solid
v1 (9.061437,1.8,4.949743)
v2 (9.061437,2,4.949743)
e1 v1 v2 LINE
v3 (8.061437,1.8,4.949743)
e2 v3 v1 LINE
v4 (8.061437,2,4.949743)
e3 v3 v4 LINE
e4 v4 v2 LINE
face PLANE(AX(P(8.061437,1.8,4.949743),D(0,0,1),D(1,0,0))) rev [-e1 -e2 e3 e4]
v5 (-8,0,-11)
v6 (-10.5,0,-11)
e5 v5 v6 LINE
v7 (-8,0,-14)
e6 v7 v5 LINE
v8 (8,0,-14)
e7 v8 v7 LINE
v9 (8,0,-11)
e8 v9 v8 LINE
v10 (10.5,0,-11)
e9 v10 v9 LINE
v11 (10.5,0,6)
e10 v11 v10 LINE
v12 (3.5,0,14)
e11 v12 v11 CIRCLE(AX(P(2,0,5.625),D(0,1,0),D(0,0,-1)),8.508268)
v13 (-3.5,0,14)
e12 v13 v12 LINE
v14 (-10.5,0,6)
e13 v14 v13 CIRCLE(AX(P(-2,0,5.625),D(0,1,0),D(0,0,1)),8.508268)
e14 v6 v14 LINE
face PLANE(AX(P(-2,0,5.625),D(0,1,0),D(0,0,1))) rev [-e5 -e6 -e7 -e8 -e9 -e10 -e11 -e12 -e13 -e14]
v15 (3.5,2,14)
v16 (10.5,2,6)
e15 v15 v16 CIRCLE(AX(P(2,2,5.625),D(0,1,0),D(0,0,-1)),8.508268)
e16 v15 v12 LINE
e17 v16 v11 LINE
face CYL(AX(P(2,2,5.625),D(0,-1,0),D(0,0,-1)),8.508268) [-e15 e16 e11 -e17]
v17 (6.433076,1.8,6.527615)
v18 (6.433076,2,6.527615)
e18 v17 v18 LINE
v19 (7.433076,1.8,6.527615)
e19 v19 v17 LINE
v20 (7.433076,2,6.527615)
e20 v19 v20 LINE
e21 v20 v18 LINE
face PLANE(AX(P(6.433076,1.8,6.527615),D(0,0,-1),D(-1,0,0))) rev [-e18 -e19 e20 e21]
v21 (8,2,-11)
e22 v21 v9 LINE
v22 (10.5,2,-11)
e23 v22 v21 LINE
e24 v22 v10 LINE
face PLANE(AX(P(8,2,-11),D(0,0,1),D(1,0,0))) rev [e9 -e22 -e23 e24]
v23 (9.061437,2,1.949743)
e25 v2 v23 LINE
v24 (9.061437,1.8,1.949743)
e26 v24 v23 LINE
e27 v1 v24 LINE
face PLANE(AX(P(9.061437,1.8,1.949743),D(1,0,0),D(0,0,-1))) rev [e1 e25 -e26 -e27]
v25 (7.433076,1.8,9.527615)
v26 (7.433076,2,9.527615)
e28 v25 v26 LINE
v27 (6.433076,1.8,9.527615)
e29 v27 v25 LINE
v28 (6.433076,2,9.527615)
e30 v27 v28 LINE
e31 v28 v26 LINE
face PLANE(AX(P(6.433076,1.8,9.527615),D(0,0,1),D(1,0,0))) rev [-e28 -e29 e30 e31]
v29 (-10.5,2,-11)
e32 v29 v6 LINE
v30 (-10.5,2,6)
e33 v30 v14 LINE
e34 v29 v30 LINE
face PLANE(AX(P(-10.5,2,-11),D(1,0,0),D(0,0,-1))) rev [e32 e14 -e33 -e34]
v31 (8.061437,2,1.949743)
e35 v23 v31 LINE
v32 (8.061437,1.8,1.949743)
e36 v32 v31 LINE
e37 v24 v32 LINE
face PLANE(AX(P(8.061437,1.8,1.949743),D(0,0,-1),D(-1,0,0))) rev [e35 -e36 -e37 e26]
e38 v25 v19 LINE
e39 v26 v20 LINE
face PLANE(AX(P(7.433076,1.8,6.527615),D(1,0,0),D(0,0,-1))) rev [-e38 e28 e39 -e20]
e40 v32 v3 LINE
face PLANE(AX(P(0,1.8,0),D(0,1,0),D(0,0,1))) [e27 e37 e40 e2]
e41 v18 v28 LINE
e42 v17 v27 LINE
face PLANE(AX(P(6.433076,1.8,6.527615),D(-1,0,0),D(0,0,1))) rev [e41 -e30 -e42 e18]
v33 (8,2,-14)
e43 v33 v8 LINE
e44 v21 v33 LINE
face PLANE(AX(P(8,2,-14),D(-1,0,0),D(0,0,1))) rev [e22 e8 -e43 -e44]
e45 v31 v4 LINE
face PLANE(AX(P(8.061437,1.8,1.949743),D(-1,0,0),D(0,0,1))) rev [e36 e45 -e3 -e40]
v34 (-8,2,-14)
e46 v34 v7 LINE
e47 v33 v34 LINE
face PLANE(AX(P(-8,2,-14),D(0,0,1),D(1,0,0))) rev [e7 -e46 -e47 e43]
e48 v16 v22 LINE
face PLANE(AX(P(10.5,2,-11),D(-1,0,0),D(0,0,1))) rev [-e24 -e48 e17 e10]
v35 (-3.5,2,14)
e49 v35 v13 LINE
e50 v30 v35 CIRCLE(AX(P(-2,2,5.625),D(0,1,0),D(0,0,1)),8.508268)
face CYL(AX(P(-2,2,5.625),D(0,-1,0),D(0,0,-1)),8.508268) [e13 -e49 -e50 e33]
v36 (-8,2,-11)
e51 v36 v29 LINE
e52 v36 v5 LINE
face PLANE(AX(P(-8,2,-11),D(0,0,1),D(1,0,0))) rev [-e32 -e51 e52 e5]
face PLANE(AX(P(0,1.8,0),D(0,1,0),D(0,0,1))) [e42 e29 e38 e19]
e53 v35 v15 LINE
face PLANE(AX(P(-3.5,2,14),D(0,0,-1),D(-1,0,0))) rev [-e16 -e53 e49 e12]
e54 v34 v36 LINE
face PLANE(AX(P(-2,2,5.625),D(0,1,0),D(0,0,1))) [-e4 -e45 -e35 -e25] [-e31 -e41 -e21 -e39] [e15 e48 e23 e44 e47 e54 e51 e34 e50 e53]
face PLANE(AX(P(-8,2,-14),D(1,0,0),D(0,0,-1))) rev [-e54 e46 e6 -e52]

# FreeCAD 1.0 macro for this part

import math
import FreeCAD as App
import Part
import Sketcher
from FreeCAD import Vector
Q = App.Units.Quantity

doc = App.newDocument("Part")
body = doc.addObject("PartDesign::Body", "Body")

# Sketch on XZ plane
sketch1 = doc.addObject("Sketcher::SketchObject", "Sketch")
body.addObject(sketch1)
sketch1.AttachmentSupport = (doc.XZ_Plane, [""])
sketch1.MapMode = "FlatFace"
sketch1.addGeometry([
    Part.LineSegment(Vector(8, -14, 0), Vector(-8, -14, 0)),  # 0
    Part.LineSegment(Vector(-8, -14, 0), Vector(-8, -11, 0)),  # 1
    Part.LineSegment(Vector(-8, -11, 0), Vector(-10.5, -11, 0)),  # 2
    Part.LineSegment(Vector(-10.5, -11, 0), Vector(-10.5, 6, 0)),  # 3
    Part.ArcOfCircle(Part.Circle(Vector(-2, 5.6, 0), Vector(0, 0, 1), 8.5), math.radians(100), math.radians(177)),  # 4
    Part.LineSegment(Vector(-3.5, 14, 0), Vector(3.5, 14, 0)),  # 5
    Part.ArcOfCircle(Part.Circle(Vector(2, 5.6, 0), Vector(0, 0, 1), 8.5), math.radians(3), math.radians(80)),  # 6
    Part.LineSegment(Vector(10.5, 6, 0), Vector(10.5, -11, 0)),  # 7
    Part.LineSegment(Vector(10.5, -11, 0), Vector(8, -11, 0)),  # 8
    Part.LineSegment(Vector(8, -11, 0), Vector(8, -14, 0)),  # 9
], False)
sketch1.addConstraint([
    Sketcher.Constraint("Coincident", 0, 2, 1, 1),
    Sketcher.Constraint("Coincident", 1, 2, 2, 1),
    Sketcher.Constraint("Coincident", 2, 2, 3, 1),
    Sketcher.Constraint("Coincident", 3, 2, 4, 2),
    Sketcher.Constraint("Coincident", 4, 1, 5, 1),
    Sketcher.Constraint("Coincident", 5, 2, 6, 2),
    Sketcher.Constraint("Coincident", 6, 1, 7, 1),
    Sketcher.Constraint("Coincident", 7, 2, 8, 1),
    Sketcher.Constraint("Coincident", 8, 2, 9, 1),
    Sketcher.Constraint("Coincident", 9, 2, 0, 1),
    Sketcher.Constraint("Horizontal", 0),
    Sketcher.Constraint("Vertical", 1),
    Sketcher.Constraint("Horizontal", 2),
    Sketcher.Constraint("Vertical", 3),
    Sketcher.Constraint("Horizontal", 5),
    Sketcher.Constraint("Vertical", 7),
    Sketcher.Constraint("Horizontal", 8),
    Sketcher.Constraint("Vertical", 9),
    Sketcher.Constraint("Equal", 4, 6),
    Sketcher.Constraint("Symmetric", 4, 3, 6, 3, -2),
    Sketcher.Constraint("Symmetric", 2, 2, 7, 2, -2),
    Sketcher.Constraint("Equal", 2, 8),
    Sketcher.Constraint("DistanceX", 0, 2, 0, 1, Q("16 mm")),
    Sketcher.Constraint("DistanceX", 5, 1, 5, 2, Q("7 mm")),
    Sketcher.Constraint("DistanceY", 1, 1, 1, 2, Q("3 mm")),
    Sketcher.Constraint("DistanceY", 3, 1, 3, 2, Q("17 mm")),
    Sketcher.Constraint("DistanceX", 2, 2, 2, 1, Q("2.5 mm")),
    Sketcher.Constraint("DistanceX", 4, 3, -1, 1, Q("2 mm")),
    Sketcher.Constraint("DistanceY", 0, 2, -1, 1, Q("14 mm")),
    Sketcher.Constraint("DistanceY", -1, 1, 4, 1, Q("14 mm")),
])
pad1 = doc.addObject("PartDesign::Pad", "Pad")
body.addObject(pad1)
pad1.Profile = sketch1
pad1.Length = 2
pad1.Reversed = True

# Sketch on XZ plane
sketch2 = doc.addObject("Sketcher::SketchObject", "Sketch001")
body.addObject(sketch2)
sketch2.AttachmentSupport = (doc.XZ_Plane, [""])
sketch2.MapMode = "FlatFace"
sketch2.AttachmentOffset = App.Placement(Vector(0, 0, -2), App.Rotation())
sketch2.addGeometry([
    Part.LineSegment(Vector(8.1, 1.9, 0), Vector(8.1, 4.9, 0)),  # 0
    Part.LineSegment(Vector(8.1, 4.9, 0), Vector(9.1, 4.9, 0)),  # 1
    Part.LineSegment(Vector(9.1, 4.9, 0), Vector(9.1, 1.9, 0)),  # 2
    Part.LineSegment(Vector(9.1, 1.9, 0), Vector(8.1, 1.9, 0)),  # 3
    Part.LineSegment(Vector(6.4, 6.5, 0), Vector(6.4, 9.5, 0)),  # 4
    Part.LineSegment(Vector(6.4, 9.5, 0), Vector(7.4, 9.5, 0)),  # 5
    Part.LineSegment(Vector(7.4, 9.5, 0), Vector(7.4, 6.5, 0)),  # 6
    Part.LineSegment(Vector(7.4, 6.5, 0), Vector(6.4, 6.5, 0)),  # 7
], False)
sketch2.addConstraint([
    Sketcher.Constraint("Coincident", 0, 2, 1, 1),
    Sketcher.Constraint("Coincident", 1, 2, 2, 1),
    Sketcher.Constraint("Coincident", 2, 2, 3, 1),
    Sketcher.Constraint("Coincident", 3, 2, 0, 1),
    Sketcher.Constraint("Coincident", 4, 2, 5, 1),
    Sketcher.Constraint("Coincident", 5, 2, 6, 1),
    Sketcher.Constraint("Coincident", 6, 2, 7, 1),
    Sketcher.Constraint("Coincident", 7, 2, 4, 1),
    Sketcher.Constraint("Vertical", 0),
    Sketcher.Constraint("Horizontal", 1),
    Sketcher.Constraint("Vertical", 2),
    Sketcher.Constraint("Horizontal", 3),
    Sketcher.Constraint("Vertical", 4),
    Sketcher.Constraint("Horizontal", 5),
    Sketcher.Constraint("Vertical", 6),
    Sketcher.Constraint("Horizontal", 7),
    Sketcher.Constraint("Equal", 3, 5),
    Sketcher.Constraint("Equal", 2, 4),
    Sketcher.Constraint("DistanceX", 1, 1, 1, 2, Q("1 mm")),
    Sketcher.Constraint("DistanceY", 0, 1, 0, 2, Q("3 mm")),
    Sketcher.Constraint("DistanceX", 4, 2, 0, 2, Q("1.628361 mm")),
    Sketcher.Constraint("DistanceY", 0, 2, 4, 2, Q("4.577872 mm")),
    Sketcher.Constraint("DistanceX", -1, 1, 0, 2, Q("8.061437 mm")),
    Sketcher.Constraint("DistanceY", -1, 1, 0, 2, Q("4.949743 mm")),
])
pocket1 = doc.addObject("PartDesign::Pocket", "Pocket")
body.addObject(pocket1)
pocket1.Profile = sketch2
pocket1.Length = 0.2
pocket1.Reversed = True

doc.recompute()
